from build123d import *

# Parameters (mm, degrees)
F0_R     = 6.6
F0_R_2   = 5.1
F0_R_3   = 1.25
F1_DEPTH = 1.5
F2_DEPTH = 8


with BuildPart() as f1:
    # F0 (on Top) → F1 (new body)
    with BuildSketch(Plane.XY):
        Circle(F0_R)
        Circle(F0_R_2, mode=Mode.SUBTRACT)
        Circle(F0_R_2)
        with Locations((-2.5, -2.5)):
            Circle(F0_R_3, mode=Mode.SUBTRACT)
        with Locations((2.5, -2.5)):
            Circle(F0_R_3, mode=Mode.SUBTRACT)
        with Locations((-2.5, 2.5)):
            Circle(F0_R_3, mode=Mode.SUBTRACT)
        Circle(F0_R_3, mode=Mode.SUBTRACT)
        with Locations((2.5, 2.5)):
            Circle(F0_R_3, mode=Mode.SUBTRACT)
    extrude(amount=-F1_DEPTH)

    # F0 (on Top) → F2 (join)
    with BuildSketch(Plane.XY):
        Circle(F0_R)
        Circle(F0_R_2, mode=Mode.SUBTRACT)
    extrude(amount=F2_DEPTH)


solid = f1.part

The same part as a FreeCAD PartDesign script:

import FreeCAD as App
import Part
import Sketcher

V = App.Vector
Q = App.Units.Quantity

doc = App.newDocument("Part")
body = doc.addObject("PartDesign::Body", "Body")

sketch1 = doc.addObject("Sketcher::SketchObject", "Sketch")
body.addObject(sketch1)
sketch1.AttachmentSupport = (doc.XY_Plane, [""])
sketch1.MapMode = "FlatFace"
sketch1.addGeometry(Part.Circle(V(0, 0, 0), V(0, 0, 1), 6.6), False)
sketch1.addGeometry(Part.Circle(V(-2.5, -2.5, 0), V(0, 0, 1), 1.2), False)
sketch1.addGeometry(Part.Circle(V(2.5, -2.5, 0), V(0, 0, 1), 1.2), False)
sketch1.addGeometry(Part.Circle(V(-2.5, 2.5, 0), V(0, 0, 1), 1.2), False)
sketch1.addGeometry(Part.Circle(V(0, 0, 0), V(0, 0, 1), 1.2), False)
sketch1.addGeometry(Part.Circle(V(2.5, 2.5, 0), V(0, 0, 1), 1.2), False)
sketch1.addConstraint(Sketcher.Constraint("Coincident", 0, 3, -1, 1))
sketch1.addConstraint(Sketcher.Constraint("Coincident", 4, 3, -1, 1))
sketch1.addConstraint(Sketcher.Constraint("Equal", 1, 2))
sketch1.addConstraint(Sketcher.Constraint("Equal", 2, 3))
sketch1.addConstraint(Sketcher.Constraint("Equal", 3, 4))
sketch1.addConstraint(Sketcher.Constraint("Equal", 4, 5))
sketch1.addConstraint(Sketcher.Constraint("Symmetric", 2, 3, 3, 3, -1, 1))
sketch1.addConstraint(Sketcher.Constraint("Symmetric", 1, 3, 5, 3, -1, 1))
sketch1.addConstraint(Sketcher.Constraint("Symmetric", 1, 3, 2, 3, -2))
sketch1.addConstraint(Sketcher.Constraint("Diameter", 0, Q("13.2 mm")))
sketch1.addConstraint(Sketcher.Constraint("Diameter", 1, Q("2.5 mm")))
sketch1.addConstraint(Sketcher.Constraint("DistanceX", 1, 3, 2, 3, Q("5 mm")))
sketch1.addConstraint(Sketcher.Constraint("DistanceY", 1, 3, 3, 3, Q("5 mm")))
pad1 = doc.addObject("PartDesign::Pad", "Pad")
body.addObject(pad1)
pad1.Profile = sketch1
pad1.Length = 1.5
pad1.Reversed = True

sketch2 = doc.addObject("Sketcher::SketchObject", "Sketch001")
body.addObject(sketch2)
sketch2.AttachmentSupport = (doc.XY_Plane, [""])
sketch2.MapMode = "FlatFace"
sketch2.addGeometry(Part.Circle(V(0, 0, 0), V(0, 0, 1), 7), False)
sketch2.addGeometry(Part.Circle(V(0, 0, 0), V(0, 0, 1), 5), False)
sketch2.addConstraint(Sketcher.Constraint("Coincident", 0, 3, -1, 1))
sketch2.addConstraint(Sketcher.Constraint("Coincident", 1, 3, -1, 1))
sketch2.addConstraint(Sketcher.Constraint("Diameter", 0, Q("13.2 mm")))
sketch2.addConstraint(Sketcher.Constraint("Diameter", 1, Q("10.2 mm")))
pad2 = doc.addObject("PartDesign::Pad", "Pad001")
body.addObject(pad2)
pad2.Profile = sketch2
pad2.Length = 8

doc.recompute()
